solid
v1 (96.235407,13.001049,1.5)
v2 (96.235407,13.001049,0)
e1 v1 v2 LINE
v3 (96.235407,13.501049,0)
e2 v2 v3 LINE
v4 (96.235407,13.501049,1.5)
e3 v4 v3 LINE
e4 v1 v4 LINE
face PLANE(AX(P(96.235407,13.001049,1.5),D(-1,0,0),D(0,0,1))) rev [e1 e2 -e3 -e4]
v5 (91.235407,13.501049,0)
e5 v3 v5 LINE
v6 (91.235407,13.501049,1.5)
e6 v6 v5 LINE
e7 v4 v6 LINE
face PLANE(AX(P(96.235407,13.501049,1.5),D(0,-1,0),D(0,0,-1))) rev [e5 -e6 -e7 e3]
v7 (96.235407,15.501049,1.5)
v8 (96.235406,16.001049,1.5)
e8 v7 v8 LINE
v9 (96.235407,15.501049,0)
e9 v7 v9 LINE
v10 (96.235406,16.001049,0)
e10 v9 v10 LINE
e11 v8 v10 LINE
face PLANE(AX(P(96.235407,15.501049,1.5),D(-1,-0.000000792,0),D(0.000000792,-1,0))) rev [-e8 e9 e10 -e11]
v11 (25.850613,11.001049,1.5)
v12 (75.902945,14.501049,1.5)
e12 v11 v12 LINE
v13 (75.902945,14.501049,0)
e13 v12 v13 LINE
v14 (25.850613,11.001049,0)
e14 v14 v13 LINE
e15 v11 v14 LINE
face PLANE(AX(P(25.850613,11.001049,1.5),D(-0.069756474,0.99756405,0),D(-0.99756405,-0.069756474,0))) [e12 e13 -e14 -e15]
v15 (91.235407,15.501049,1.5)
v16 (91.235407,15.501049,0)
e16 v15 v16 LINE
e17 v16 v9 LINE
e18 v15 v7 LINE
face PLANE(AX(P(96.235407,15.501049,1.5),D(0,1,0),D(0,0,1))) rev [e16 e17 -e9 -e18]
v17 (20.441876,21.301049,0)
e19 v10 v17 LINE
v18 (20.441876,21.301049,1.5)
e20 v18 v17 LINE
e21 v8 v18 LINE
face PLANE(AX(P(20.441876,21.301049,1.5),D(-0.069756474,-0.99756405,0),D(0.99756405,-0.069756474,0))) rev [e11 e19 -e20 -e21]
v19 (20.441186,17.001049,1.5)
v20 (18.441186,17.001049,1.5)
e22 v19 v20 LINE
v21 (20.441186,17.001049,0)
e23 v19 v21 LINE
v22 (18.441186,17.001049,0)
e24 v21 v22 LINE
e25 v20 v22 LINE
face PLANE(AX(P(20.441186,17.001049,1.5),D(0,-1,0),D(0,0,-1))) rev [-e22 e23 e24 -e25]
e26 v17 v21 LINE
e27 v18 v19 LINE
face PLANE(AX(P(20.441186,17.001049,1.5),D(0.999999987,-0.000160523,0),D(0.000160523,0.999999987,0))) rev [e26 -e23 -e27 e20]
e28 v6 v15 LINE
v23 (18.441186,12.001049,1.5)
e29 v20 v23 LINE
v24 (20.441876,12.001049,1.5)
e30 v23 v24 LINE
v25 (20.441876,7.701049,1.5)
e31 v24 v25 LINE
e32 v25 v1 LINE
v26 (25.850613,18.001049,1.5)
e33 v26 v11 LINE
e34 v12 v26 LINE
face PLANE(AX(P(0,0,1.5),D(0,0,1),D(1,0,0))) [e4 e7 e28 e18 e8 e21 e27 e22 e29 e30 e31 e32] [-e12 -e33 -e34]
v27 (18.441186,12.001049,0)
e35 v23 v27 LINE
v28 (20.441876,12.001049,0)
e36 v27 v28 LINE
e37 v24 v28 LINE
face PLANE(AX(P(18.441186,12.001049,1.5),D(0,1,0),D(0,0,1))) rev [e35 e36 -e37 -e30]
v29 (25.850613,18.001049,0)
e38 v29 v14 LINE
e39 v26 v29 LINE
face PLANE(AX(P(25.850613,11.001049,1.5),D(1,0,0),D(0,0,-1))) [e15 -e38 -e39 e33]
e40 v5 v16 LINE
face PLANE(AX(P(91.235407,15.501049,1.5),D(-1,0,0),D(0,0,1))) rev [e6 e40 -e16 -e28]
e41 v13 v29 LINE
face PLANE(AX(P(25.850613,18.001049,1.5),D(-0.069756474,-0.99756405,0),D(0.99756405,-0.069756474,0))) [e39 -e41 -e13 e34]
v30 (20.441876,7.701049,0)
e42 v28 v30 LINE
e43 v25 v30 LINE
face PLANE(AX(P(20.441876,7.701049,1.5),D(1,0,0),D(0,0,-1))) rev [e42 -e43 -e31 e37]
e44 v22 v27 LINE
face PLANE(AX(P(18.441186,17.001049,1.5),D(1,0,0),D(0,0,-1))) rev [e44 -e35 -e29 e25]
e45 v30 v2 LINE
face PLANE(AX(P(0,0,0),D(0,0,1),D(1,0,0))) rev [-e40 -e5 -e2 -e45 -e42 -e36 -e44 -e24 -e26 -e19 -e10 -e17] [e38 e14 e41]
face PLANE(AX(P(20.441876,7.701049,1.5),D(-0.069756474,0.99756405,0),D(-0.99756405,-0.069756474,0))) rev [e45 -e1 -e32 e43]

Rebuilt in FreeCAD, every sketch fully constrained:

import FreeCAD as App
import Part
import Sketcher
Q = App.Units.Quantity


def add_polygon(sketch, points):
    """Adds a closed chain of lines whose ends are joined by coincident constraints."""
    first, n = sketch.GeometryCount, len(points)
    for a, b in zip(points, points[1:] + points[:1]):
        sketch.addGeometry(Part.LineSegment(App.Vector(*a, 0), App.Vector(*b, 0)), False)
    for i in range(n):
        sketch.addConstraint(Sketcher.Constraint("Coincident", first + i, 2, first + (i + 1) % n, 1))

doc = App.newDocument("Part")
body = doc.addObject("PartDesign::Body", "Body")

sketch1 = doc.addObject("Sketcher::SketchObject", "Sketch")
body.addObject(sketch1)
sketch1.AttachmentSupport = (doc.XY_Plane, [""])
sketch1.MapMode = "FlatFace"
add_polygon(sketch1, [(18.441186, 12.001049), (20.441876, 12.001049), (20.441876, 7.701049), (96.235407, 13.001049), (96.235407, 13.501049), (91.235407, 13.501049), (91.235407, 15.501049), (96.235407, 15.501049), (96.235406, 16.001049), (20.441876, 21.301049), (20.441186, 17.001049), (18.441186, 17.001049)])
add_polygon(sketch1, [(75.902945, 14.501049), (25.850613, 11.001049), (25.850613, 18.001049)])
sketch1.addConstraint([
    Sketcher.Constraint("Horizontal", 0),
    Sketcher.Constraint("Vertical", 1),
    Sketcher.Constraint("Vertical", 3),
    Sketcher.Constraint("Horizontal", 4),
    Sketcher.Constraint("Vertical", 5),
    Sketcher.Constraint("Horizontal", 6),
    Sketcher.Constraint("Vertical", 7),
    Sketcher.Constraint("Horizontal", 10),
    Sketcher.Constraint("Vertical", 11),
    Sketcher.Constraint("Vertical", 13),
    Sketcher.Constraint("Parallel", 2, 12),
    Sketcher.Constraint("Parallel", 8, 14),
    Sketcher.Constraint("Vertical", 3, 2, 6, 2),
    Sketcher.Constraint("Vertical", 1, 2, 8, 2),
    Sketcher.Constraint("Equal", 10, 5),
    Sketcher.Constraint("Equal", 3, 7),
    Sketcher.Constraint("Equal", 6, 11),
    Sketcher.Constraint("Equal", 2, 8),
    Sketcher.Constraint("DistanceX", 4, 2, 4, 1, Q("5 mm")),
    Sketcher.Constraint("DistanceX", 10, 2, 10, 1, Q("2 mm")),
    Sketcher.Constraint("DistanceY", 13, 1, 13, 2, Q("7 mm")),
    Sketcher.Constraint("Angle", 2, Q("4 deg")),
    Sketcher.Constraint("DistanceY", 1, 2, 1, 1, Q("4.3 mm")),
    Sketcher.Constraint("DistanceY", 3, 1, 3, 2, Q("0.5 mm")),
    Sketcher.Constraint("DistanceY", 0, 2, 2, 2, Q("1 mm")),
    Sketcher.Constraint("DistanceY", 12, 2, 0, 2, Q("1 mm")),
    Sketcher.Constraint("DistanceX", 0, 1, 0, 2, Q("2.00069 mm")),
    Sketcher.Constraint("DistanceY", -1, 1, 0, 2, Q("12.001049 mm")),
    Sketcher.Constraint("DistanceX", 14, 2, 6, 2, Q("20.332462 mm")),
    Sketcher.Constraint("DistanceX", -1, 1, 0, 2, Q("20.441876 mm")),
])
pad1 = doc.addObject("PartDesign::Pad", "Pad")
body.addObject(pad1)
pad1.Profile = sketch1
pad1.Length = 1.5

doc.recompute()
